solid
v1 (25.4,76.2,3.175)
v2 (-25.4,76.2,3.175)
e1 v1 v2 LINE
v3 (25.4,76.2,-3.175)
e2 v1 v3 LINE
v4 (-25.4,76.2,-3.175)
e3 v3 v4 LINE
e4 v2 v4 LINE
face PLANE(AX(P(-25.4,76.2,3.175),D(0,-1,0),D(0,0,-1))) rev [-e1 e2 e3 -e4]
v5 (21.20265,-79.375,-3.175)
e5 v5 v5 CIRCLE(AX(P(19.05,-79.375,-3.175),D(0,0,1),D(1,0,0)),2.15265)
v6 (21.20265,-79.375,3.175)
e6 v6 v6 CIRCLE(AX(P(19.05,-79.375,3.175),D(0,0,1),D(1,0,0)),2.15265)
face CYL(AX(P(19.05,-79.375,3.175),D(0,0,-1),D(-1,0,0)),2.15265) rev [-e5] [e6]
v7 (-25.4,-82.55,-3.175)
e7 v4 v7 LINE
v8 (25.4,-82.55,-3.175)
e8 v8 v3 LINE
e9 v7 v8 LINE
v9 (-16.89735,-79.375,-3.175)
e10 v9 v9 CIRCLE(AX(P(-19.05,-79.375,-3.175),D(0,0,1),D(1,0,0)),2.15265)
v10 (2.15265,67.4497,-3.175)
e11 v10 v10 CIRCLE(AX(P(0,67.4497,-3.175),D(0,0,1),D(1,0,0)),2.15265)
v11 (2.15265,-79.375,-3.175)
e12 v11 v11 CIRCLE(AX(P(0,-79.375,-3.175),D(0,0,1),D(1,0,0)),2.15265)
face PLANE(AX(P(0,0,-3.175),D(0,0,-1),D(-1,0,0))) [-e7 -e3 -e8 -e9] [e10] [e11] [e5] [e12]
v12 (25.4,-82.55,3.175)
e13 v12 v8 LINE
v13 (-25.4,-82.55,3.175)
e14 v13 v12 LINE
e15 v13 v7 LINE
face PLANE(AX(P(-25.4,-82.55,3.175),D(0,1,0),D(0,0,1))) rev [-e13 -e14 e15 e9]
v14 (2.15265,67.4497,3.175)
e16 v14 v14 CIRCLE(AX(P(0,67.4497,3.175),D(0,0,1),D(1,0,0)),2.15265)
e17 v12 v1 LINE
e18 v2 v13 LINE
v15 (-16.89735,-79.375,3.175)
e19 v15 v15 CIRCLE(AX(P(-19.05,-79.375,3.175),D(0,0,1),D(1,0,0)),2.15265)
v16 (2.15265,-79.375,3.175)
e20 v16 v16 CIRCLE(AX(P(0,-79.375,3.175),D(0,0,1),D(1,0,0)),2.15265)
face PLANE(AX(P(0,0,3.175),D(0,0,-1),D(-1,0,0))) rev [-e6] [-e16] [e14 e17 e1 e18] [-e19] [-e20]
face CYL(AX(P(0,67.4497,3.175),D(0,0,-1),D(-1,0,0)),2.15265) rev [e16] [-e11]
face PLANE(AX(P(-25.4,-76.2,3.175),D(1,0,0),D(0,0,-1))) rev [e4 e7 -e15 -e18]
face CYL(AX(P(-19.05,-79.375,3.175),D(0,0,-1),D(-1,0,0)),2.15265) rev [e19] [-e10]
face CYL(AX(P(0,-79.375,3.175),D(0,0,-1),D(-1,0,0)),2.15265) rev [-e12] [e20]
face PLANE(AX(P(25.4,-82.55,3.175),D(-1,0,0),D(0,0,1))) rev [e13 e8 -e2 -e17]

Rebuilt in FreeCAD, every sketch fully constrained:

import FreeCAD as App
import Part
import Sketcher
Q = App.Units.Quantity


def add_polygon(sketch, points):
    """Adds a closed chain of lines whose ends are joined by coincident constraints."""
    first, n = sketch.GeometryCount, len(points)
    for a, b in zip(points, points[1:] + points[:1]):
        sketch.addGeometry(Part.LineSegment(App.Vector(*a, 0), App.Vector(*b, 0)), False)
    for i in range(n):
        sketch.addConstraint(Sketcher.Constraint("Coincident", first + i, 2, first + (i + 1) % n, 1))

doc = App.newDocument("Part")
body = doc.addObject("PartDesign::Body", "Body")

# Sketch on XY plane
sketch1 = body.newObject("Sketcher::SketchObject", "Sketch")
sketch1.AttachmentSupport = (doc.getObject("XY_Plane"), [""])
sketch1.MapMode = "FlatFace"
add_polygon(sketch1, [(-25.4, -82.5), (25.4, -82.5), (25.4, 76.2), (-25.4, 76.2)])  # lines 0-3
sketch1.addGeometry(Part.Circle(App.Vector(-19.1, -79.4, 0), App.Vector(0, 0, 1), 2.2), False)  # 4
sketch1.addGeometry(Part.Circle(App.Vector(0, -79.4, 0), App.Vector(0, 0, 1), 2.2), False)  # 5
sketch1.addGeometry(Part.Circle(App.Vector(19.1, -79.4, 0), App.Vector(0, 0, 1), 2.2), False)  # 6
sketch1.addGeometry(Part.Circle(App.Vector(0, 67.4, 0), App.Vector(0, 0, 1), 2.2), False)  # 7
sketch1.addConstraint([
    Sketcher.Constraint("Horizontal", 0),
    Sketcher.Constraint("Vertical", 1),
    Sketcher.Constraint("Horizontal", 2),
    Sketcher.Constraint("Vertical", 3),
    Sketcher.Constraint("Equal", 4, 5),
    Sketcher.Constraint("Equal", 5, 6),
    Sketcher.Constraint("Equal", 6, 7),
    Sketcher.Constraint("Symmetric", 4, 3, 6, 3, -2),
    Sketcher.Constraint("PointOnObject", 5, 3, -2),
    Sketcher.Constraint("PointOnObject", 7, 3, -2),
    Sketcher.Constraint("Horizontal", 4, 3, 5, 3),
    Sketcher.Constraint("DistanceX", 0, 1, 0, 2, Q("2 in")),
    Sketcher.Constraint("DistanceX", -1, 1, 0, 2, Q("1 in")),
    Sketcher.Constraint("DistanceY", -1, 1, 1, 2, Q("3 in")),
    Sketcher.Constraint("Diameter", 4, Q("0.1695 in")),
    Sketcher.Constraint("DistanceY", 1, 1, 1, 2, Q("6.25 in")),
    Sketcher.Constraint("DistanceX", 4, 3, 6, 3, Q("1.5 in")),
    Sketcher.Constraint("DistanceY", 4, 3, -1, 1, Q("3.125 in")),
    Sketcher.Constraint("DistanceY", -1, 1, 7, 3, Q("2.6555 in")),
])
pad1 = body.newObject("PartDesign::Pad", "Pad")
pad1.Profile = sketch1
pad1.Length = Q("0.25 in")
pad1.Midplane = True

doc.recompute()
